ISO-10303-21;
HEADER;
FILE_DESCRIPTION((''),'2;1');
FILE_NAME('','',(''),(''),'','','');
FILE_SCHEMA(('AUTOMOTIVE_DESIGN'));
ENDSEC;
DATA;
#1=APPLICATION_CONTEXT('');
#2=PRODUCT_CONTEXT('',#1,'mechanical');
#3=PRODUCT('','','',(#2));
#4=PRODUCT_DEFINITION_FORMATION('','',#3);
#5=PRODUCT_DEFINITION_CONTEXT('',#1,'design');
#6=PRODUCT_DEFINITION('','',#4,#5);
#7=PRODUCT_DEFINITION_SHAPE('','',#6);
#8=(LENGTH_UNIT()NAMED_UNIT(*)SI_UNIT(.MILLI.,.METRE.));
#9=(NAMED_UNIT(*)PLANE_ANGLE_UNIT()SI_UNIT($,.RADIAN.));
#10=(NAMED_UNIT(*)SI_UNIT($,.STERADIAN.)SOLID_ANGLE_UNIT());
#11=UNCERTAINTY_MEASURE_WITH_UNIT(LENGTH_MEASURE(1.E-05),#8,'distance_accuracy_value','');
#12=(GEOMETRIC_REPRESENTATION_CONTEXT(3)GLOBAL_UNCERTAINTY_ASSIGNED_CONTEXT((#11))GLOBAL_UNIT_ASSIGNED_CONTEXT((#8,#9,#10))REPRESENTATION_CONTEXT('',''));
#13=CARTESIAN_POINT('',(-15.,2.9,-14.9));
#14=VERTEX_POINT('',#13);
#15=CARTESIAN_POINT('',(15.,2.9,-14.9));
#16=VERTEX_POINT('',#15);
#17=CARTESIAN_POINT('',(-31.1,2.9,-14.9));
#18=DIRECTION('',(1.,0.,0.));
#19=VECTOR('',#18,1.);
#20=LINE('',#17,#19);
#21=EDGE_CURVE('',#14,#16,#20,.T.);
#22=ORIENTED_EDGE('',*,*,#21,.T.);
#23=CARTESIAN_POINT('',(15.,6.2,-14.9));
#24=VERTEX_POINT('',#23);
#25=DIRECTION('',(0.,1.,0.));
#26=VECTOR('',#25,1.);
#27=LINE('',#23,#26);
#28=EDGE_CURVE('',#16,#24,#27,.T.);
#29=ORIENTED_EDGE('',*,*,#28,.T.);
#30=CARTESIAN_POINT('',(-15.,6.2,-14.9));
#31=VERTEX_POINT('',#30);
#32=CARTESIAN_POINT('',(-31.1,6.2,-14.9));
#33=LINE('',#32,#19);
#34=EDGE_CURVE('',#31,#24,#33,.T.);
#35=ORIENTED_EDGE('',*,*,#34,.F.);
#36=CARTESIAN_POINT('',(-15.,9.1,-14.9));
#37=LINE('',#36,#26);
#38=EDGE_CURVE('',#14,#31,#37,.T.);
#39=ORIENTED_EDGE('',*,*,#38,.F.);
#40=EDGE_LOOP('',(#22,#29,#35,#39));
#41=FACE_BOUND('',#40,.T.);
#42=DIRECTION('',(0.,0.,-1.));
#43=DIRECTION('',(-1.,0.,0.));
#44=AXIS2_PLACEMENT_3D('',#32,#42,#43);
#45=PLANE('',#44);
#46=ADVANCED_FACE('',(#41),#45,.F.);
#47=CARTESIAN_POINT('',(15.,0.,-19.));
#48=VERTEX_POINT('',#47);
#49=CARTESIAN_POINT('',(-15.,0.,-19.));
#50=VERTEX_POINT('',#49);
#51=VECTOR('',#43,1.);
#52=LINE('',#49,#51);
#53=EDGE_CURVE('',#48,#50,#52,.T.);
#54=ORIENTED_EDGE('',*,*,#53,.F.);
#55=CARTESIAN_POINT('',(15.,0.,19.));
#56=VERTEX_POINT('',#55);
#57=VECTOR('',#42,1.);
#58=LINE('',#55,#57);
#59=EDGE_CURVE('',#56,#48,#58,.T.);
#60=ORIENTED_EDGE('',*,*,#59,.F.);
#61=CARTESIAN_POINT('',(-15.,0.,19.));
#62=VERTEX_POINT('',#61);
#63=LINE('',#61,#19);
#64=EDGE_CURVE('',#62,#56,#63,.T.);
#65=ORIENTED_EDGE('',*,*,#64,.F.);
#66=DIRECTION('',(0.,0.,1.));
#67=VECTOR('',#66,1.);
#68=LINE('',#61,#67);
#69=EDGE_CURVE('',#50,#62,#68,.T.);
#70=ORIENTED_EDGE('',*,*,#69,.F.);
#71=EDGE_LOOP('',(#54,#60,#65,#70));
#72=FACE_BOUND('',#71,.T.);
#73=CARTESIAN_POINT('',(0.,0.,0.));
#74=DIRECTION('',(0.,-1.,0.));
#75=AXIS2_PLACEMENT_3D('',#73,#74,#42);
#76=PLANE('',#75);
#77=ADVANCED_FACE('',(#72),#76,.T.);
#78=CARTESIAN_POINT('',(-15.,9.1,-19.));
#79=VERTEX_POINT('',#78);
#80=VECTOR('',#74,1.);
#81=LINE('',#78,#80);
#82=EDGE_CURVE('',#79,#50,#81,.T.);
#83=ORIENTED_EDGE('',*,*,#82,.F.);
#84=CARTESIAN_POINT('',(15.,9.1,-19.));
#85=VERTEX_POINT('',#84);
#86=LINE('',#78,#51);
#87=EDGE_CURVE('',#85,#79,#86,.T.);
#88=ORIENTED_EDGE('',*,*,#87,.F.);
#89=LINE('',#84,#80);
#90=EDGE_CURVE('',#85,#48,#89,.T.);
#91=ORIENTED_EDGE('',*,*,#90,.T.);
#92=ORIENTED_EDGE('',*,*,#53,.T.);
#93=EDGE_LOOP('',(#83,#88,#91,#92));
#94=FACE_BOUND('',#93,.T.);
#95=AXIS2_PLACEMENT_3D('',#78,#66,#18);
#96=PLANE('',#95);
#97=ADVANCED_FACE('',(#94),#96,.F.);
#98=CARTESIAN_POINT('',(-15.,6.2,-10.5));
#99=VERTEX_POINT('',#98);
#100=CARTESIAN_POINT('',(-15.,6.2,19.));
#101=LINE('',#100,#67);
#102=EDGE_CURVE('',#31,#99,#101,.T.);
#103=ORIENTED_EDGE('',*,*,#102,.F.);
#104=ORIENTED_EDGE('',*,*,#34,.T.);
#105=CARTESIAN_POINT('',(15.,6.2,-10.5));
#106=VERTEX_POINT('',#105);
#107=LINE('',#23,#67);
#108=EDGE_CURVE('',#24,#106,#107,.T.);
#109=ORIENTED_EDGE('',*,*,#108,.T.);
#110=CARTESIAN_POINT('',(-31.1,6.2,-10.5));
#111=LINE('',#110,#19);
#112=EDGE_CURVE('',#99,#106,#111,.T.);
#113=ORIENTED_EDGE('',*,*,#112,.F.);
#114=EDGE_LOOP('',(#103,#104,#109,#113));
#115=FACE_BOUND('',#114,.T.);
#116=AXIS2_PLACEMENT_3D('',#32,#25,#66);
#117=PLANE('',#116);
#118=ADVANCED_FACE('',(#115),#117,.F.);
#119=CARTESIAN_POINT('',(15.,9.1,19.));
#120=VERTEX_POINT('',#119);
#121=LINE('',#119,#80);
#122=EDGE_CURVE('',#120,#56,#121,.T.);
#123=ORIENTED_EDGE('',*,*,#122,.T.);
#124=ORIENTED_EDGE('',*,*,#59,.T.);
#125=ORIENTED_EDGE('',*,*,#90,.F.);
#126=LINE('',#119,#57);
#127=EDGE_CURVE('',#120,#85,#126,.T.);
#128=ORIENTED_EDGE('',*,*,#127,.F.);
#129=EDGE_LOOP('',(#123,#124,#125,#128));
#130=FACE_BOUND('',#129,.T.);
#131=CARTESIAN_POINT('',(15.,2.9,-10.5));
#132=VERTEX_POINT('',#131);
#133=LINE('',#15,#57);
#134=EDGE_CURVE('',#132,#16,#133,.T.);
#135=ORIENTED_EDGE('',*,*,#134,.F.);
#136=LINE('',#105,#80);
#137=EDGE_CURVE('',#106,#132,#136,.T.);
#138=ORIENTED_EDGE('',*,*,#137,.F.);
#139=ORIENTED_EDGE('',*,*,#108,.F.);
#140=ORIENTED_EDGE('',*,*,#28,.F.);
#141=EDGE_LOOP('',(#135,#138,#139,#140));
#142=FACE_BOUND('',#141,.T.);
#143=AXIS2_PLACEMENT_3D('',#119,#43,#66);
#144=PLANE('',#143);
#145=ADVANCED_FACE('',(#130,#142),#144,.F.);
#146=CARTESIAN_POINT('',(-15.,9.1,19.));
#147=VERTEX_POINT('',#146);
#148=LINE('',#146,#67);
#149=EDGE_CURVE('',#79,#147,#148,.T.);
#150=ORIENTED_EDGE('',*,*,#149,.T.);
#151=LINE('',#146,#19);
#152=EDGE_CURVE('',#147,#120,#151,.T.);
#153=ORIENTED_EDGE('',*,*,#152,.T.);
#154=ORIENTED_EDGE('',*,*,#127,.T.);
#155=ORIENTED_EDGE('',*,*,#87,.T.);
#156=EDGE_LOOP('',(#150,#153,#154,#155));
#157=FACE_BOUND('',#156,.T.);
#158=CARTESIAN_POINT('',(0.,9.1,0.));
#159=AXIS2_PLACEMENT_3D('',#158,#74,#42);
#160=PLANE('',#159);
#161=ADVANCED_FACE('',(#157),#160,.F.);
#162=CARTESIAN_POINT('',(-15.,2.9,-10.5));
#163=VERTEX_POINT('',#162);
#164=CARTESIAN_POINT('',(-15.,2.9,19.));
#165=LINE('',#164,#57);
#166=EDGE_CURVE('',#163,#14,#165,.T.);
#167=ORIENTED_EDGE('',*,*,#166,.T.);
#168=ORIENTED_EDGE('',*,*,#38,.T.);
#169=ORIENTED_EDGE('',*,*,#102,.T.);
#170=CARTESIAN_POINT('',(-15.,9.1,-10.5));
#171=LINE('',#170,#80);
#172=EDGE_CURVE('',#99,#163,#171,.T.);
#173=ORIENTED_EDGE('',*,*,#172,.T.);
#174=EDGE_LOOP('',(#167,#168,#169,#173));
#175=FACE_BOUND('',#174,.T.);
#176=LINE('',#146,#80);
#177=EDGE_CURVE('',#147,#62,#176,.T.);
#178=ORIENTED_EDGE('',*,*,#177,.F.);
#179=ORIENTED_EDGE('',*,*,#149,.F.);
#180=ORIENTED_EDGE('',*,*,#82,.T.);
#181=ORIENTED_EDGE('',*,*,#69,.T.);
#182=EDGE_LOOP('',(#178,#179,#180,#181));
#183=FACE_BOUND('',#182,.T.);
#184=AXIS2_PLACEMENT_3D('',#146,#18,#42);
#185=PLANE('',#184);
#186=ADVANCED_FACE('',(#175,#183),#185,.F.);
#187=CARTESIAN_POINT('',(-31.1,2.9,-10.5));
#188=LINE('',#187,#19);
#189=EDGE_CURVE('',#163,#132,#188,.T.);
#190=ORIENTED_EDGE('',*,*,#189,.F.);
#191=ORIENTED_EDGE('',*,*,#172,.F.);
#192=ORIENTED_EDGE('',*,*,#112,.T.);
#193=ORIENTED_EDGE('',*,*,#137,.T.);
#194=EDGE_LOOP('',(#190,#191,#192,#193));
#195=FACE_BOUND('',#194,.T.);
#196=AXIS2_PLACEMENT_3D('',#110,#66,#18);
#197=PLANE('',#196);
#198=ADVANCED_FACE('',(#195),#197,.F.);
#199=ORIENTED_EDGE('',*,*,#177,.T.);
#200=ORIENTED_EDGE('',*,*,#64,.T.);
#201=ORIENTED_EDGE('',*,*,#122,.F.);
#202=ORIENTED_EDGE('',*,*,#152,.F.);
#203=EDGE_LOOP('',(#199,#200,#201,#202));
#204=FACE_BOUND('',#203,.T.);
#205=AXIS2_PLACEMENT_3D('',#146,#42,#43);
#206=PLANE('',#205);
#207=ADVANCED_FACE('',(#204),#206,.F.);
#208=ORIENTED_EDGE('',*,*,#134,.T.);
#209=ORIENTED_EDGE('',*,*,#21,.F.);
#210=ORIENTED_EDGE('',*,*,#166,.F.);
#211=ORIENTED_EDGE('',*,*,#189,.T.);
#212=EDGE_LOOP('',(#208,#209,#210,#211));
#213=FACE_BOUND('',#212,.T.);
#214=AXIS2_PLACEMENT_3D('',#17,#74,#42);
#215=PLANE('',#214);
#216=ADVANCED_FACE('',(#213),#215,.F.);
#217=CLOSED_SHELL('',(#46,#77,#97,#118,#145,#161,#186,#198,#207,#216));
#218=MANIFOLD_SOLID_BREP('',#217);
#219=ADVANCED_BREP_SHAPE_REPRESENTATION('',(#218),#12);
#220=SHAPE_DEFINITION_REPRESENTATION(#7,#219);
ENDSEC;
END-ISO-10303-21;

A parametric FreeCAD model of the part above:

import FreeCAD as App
import Part
import Sketcher

V = App.Vector
Q = App.Units.Quantity


def add_polygon(sketch, points):
    """Adds a closed chain of lines whose ends are joined by coincident constraints."""
    first, n = sketch.GeometryCount, len(points)
    for a, b in zip(points, points[1:] + points[:1]):
        sketch.addGeometry(Part.LineSegment(App.Vector(*a, 0), App.Vector(*b, 0)), False)
    for i in range(n):
        sketch.addConstraint(Sketcher.Constraint("Coincident", first + i, 2, first + (i + 1) % n, 1))

doc = App.newDocument("Part")
params = doc.addObject("Spreadsheet::Sheet", "Params")
for row, (alias, value) in enumerate([
    ("sketch1_width", "30 mm"),
    ("sketch1_height", "38 mm"),
    ("pad1_length", "9.1 mm"),
    ("sketch2_width", "3.3 mm"),
    ("sketch2_height", "4.4 mm"),
    ("pocket1_length", "46.1 mm"),
], start=1):
    params.set(f"A{row}", alias)
    params.set(f"B{row}", "=" + value)
    params.setAlias(f"B{row}", alias)

body = doc.addObject("PartDesign::Body", "Body")

sketch1 = body.newObject("Sketcher::SketchObject", "Sketch")
sketch1.AttachmentSupport = (doc.getObject("XZ_Plane"), [""])
sketch1.MapMode = "FlatFace"
add_polygon(sketch1, [(-15, -19), (-15, 19), (15, 19), (15, -19)])
sketch1.addConstraint(Sketcher.Constraint("Vertical", 0))
sketch1.addConstraint(Sketcher.Constraint("Horizontal", 1))
sketch1.addConstraint(Sketcher.Constraint("Vertical", 2))
sketch1.addConstraint(Sketcher.Constraint("Horizontal", 3))
sketch1.addConstraint(Sketcher.Constraint("Symmetric", 0, 2, 2, 2, -1, 1))
sketch1.addConstraint(Sketcher.Constraint("DistanceX", 1, 1, 1, 2, Q("30 mm")))
sketch1.addConstraint(Sketcher.Constraint("DistanceY", 0, 1, 0, 2, Q("38 mm")))
sketch1.setExpression("Constraints[9]", "Params.sketch1_width")
sketch1.setExpression("Constraints[10]", "Params.sketch1_height")
pad1 = body.newObject("PartDesign::Pad", "Pad")
pad1.Profile = sketch1
pad1.setExpression("Length", "Params.pad1_length")
pad1.Reversed = True

sketch2 = body.newObject("Sketcher::SketchObject", "Sketch001")
sketch2.AttachmentSupport = (doc.getObject("YZ_Plane"), [""])
sketch2.MapMode = "FlatFace"
sketch2.AttachmentOffset = App.Placement(V(0, 0, 15), App.Rotation())
add_polygon(sketch2, [(6.2, -10.5), (2.9, -10.5), (2.9, -14.9), (6.2, -14.9)])
sketch2.addConstraint(Sketcher.Constraint("Horizontal", 0))
sketch2.addConstraint(Sketcher.Constraint("Vertical", 1))
sketch2.addConstraint(Sketcher.Constraint("Horizontal", 2))
sketch2.addConstraint(Sketcher.Constraint("Vertical", 3))
sketch2.addConstraint(Sketcher.Constraint("DistanceX", 0, 2, 0, 1, Q("3.3 mm")))
sketch2.addConstraint(Sketcher.Constraint("DistanceY", 1, 2, 1, 1, Q("4.4 mm")))
sketch2.addConstraint(Sketcher.Constraint("DistanceX", -1, 1, 0, 2, Q("2.9 mm")))
sketch2.addConstraint(Sketcher.Constraint("DistanceY", 0, 2, -1, 1, Q("10.5 mm")))
sketch2.setExpression("Constraints[8]", "Params.sketch2_width")
sketch2.setExpression("Constraints[9]", "Params.sketch2_height")
pocket1 = body.newObject("PartDesign::Pocket", "Pocket")
pocket1.Profile = sketch2
pocket1.setExpression("Length", "Params.pocket1_length")

doc.recompute()
